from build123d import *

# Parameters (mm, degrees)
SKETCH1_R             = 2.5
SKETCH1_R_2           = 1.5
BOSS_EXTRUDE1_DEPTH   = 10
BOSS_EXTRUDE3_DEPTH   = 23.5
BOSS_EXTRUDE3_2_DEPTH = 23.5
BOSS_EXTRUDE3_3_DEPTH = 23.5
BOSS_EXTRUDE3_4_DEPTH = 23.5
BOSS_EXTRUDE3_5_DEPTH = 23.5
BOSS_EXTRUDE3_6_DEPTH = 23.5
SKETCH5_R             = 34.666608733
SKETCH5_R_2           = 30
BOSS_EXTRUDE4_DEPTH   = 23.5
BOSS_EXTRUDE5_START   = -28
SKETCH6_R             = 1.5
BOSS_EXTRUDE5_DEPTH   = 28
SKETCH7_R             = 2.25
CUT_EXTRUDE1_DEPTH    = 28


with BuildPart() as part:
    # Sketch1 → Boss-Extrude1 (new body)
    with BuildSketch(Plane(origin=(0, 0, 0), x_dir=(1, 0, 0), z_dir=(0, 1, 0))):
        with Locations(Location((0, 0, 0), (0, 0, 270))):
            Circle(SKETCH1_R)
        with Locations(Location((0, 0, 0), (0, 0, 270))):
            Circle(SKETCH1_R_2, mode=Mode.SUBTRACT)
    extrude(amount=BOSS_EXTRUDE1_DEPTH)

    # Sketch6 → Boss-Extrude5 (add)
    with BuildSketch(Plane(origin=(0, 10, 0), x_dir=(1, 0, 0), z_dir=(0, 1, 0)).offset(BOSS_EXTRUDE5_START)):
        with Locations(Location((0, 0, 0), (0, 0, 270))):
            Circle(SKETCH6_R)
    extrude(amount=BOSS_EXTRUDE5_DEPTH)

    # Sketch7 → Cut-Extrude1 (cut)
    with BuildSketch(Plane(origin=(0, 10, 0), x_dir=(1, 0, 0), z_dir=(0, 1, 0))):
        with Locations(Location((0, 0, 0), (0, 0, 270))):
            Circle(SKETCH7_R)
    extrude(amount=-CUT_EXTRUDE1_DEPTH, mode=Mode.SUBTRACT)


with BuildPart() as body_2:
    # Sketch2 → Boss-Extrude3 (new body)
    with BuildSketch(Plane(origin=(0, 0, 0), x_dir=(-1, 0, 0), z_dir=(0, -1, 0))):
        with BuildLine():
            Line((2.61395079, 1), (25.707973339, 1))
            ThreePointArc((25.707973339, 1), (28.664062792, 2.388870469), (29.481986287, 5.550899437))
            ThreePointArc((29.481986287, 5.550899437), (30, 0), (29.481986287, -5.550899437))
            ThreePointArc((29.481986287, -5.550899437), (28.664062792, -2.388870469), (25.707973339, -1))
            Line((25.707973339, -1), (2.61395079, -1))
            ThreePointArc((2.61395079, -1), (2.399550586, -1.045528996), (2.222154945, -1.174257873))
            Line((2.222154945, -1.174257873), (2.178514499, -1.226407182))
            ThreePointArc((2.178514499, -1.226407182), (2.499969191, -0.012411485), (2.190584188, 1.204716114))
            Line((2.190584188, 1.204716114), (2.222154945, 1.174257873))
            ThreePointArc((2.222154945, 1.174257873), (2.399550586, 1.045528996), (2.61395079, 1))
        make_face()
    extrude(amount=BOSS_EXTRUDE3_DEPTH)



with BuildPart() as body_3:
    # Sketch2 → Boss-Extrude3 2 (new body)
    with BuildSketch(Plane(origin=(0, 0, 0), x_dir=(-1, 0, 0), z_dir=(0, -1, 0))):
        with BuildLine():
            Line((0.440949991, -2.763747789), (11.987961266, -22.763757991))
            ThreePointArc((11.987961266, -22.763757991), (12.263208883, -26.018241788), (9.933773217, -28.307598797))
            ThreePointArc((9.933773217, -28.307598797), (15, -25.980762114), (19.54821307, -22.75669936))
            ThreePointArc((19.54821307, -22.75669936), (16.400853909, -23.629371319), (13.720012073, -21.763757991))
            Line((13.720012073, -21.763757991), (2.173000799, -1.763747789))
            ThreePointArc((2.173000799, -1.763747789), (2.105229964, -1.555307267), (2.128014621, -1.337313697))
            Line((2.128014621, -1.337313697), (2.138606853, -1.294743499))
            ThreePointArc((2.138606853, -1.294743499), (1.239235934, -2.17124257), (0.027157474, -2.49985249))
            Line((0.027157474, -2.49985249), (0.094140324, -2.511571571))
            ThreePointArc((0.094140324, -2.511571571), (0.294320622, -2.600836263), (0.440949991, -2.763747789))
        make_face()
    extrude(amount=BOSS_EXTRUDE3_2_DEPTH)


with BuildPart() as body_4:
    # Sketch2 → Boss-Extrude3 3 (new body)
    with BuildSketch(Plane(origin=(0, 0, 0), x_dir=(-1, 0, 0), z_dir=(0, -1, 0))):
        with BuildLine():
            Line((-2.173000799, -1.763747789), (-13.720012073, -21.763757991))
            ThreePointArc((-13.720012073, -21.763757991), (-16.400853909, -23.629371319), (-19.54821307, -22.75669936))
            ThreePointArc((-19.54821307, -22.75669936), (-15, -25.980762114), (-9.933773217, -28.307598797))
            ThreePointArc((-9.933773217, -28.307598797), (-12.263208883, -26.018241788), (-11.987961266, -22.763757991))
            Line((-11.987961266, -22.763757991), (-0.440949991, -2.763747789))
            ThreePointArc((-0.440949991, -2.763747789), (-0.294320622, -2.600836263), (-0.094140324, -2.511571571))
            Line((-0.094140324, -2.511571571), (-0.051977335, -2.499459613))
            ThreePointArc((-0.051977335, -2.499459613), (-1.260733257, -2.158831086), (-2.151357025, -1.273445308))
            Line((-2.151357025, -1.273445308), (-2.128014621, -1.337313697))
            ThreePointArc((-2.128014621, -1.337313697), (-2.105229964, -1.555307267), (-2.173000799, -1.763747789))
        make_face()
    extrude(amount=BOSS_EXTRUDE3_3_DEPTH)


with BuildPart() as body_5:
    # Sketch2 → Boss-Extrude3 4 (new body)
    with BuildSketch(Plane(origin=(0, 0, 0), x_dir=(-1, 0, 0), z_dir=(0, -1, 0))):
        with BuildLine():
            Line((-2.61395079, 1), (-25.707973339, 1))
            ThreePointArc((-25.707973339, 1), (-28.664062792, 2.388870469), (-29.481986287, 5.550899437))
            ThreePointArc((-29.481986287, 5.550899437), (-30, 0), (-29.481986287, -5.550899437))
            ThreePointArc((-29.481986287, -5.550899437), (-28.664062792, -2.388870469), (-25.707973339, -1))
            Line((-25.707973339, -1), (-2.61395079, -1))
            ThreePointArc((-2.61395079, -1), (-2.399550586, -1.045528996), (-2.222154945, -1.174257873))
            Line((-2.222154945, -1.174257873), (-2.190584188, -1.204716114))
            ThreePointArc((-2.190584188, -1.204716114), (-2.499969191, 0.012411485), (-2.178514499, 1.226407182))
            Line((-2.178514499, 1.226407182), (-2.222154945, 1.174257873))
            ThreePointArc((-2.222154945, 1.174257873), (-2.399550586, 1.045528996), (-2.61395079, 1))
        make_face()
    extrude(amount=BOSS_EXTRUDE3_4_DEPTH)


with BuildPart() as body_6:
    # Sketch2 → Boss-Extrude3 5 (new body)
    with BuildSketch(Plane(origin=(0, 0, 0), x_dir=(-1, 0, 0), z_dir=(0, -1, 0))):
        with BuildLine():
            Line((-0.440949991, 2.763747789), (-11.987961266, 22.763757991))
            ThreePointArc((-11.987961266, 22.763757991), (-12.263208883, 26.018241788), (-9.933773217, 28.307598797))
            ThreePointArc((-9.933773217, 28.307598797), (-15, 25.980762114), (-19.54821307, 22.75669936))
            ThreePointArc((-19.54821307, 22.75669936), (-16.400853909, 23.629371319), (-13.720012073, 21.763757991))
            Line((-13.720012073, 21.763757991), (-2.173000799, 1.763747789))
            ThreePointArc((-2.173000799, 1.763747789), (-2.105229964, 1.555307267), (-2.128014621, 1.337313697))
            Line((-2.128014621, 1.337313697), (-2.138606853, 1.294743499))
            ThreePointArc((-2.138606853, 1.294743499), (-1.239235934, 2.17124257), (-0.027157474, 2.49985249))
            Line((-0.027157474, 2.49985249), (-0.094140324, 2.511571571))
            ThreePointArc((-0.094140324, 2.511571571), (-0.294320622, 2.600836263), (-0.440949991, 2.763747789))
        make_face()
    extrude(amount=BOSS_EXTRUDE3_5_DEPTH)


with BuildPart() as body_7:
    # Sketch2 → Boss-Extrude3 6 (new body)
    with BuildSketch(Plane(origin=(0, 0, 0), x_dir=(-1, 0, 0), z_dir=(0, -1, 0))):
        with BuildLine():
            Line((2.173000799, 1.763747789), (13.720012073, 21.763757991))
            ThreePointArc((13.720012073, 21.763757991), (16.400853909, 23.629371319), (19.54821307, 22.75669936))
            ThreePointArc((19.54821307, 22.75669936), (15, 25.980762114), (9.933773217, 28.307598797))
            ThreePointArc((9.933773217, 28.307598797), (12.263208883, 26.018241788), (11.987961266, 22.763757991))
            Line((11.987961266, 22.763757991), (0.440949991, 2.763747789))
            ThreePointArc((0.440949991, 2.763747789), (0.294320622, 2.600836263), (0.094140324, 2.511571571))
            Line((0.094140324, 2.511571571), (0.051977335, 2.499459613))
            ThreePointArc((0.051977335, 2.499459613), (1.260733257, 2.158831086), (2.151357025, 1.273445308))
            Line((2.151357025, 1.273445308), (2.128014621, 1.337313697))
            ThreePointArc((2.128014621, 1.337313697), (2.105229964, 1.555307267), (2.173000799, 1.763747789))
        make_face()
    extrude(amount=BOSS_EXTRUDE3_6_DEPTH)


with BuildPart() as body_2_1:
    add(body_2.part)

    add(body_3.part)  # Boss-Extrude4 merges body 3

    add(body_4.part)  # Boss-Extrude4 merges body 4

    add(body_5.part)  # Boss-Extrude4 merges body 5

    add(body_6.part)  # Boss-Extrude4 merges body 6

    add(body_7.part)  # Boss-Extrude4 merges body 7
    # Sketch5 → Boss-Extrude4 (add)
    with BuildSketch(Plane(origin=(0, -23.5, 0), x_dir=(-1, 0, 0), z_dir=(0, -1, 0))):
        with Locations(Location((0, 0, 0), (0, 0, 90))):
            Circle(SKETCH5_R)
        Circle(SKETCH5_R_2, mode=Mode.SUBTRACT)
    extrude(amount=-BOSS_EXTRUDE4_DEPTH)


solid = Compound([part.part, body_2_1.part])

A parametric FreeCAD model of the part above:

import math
import FreeCAD as App
import Part
import Sketcher
from FreeCAD import Vector
Q = App.Units.Quantity

doc = App.newDocument("Part")
body = doc.addObject("PartDesign::Body", "Body")

# Sketch on XZ plane
sketch1 = body.newObject("Sketcher::SketchObject", "Sketch")
sketch1.AttachmentSupport = (doc.getObject("XZ_Plane"), [""])
sketch1.MapMode = "FlatFace"
sketch1.addGeometry(Part.Circle(Vector(0, 0, 0), Vector(0, 0, 1), 2.5), False)
sketch1.addGeometry(Part.Circle(Vector(0, 0, 0), Vector(0, 0, 1), 1.5), False)
sketch1.addConstraint(Sketcher.Constraint("Coincident", 0, 3, -1, 1))
sketch1.addConstraint(Sketcher.Constraint("Coincident", 1, 3, -1, 1))
sketch1.addConstraint(Sketcher.Constraint("Diameter", 0, 5.0))
sketch1.addConstraint(Sketcher.Constraint("Diameter", 1, 3.0))
pad1 = body.newObject("PartDesign::Pad", "Pad")
pad1.Profile = sketch1
pad1.Length = 10
pad1.Reversed = True

# Sketch on XZ plane
sketch2 = body.newObject("Sketcher::SketchObject", "Sketch001")
sketch2.AttachmentSupport = (doc.getObject("XZ_Plane"), [""])
sketch2.MapMode = "FlatFace"
sketch2.AttachmentOffset = App.Placement(Vector(0, 0, 18), App.Rotation())
sketch2.addGeometry(Part.Circle(Vector(0, 0, 0), Vector(0, 0, 1), 1.5), False)
sketch2.addConstraint(Sketcher.Constraint("Coincident", 0, 3, -1, 1))
sketch2.addConstraint(Sketcher.Constraint("Diameter", 0, 3.0))
pad2 = body.newObject("PartDesign::Pad", "Pad001")
pad2.Profile = sketch2
pad2.Length = 28
pad2.Reversed = True

# Sketch on XZ plane
sketch3 = body.newObject("Sketcher::SketchObject", "Sketch002")
sketch3.AttachmentSupport = (doc.getObject("XZ_Plane"), [""])
sketch3.MapMode = "FlatFace"
sketch3.AttachmentOffset = App.Placement(Vector(0, 0, -10), App.Rotation())
sketch3.addGeometry(Part.Circle(Vector(0, 0, 0), Vector(0, 0, 1), 2.25), False)
sketch3.addConstraint(Sketcher.Constraint("Coincident", 0, 3, -1, 1))
sketch3.addConstraint(Sketcher.Constraint("Diameter", 0, 4.5))
pocket1 = body.newObject("PartDesign::Pocket", "Pocket")
pocket1.Profile = sketch3
pocket1.Length = 28
pocket1.Reversed = True
body2 = doc.addObject("PartDesign::Body", "Body001")

# Sketch on XZ plane
sketch4 = body2.newObject("Sketcher::SketchObject", "Sketch003")
sketch4.AttachmentSupport = (doc.getObject("XZ_Plane001"), [""])
sketch4.MapMode = "FlatFace"
sketch4.addGeometry(Part.LineSegment(Vector(-25.707973, -1, 0), Vector(-2.613951, -1, 0)), False)
sketch4.addGeometry(Part.ArcOfCircle(Part.Circle(Vector(-2.613951, -1.52758, 0), Vector(0, 0, 1), 0.52758), math.radians(42.044158), math.radians(90)), False)
sketch4.addGeometry(Part.LineSegment(Vector(-2.222155, -1.174258, 0), Vector(-2.190584, -1.204716, 0)), False)
sketch4.addGeometry(Part.ArcOfCircle(Part.Circle(Vector(0, 0, 0), Vector(0, 0, 1), 2.5), math.radians(150.622416), math.radians(208.808681)), False)
sketch4.addGeometry(Part.LineSegment(Vector(-2.178514, 1.226407, 0), Vector(-2.222155, 1.174258, 0)), False)
sketch4.addGeometry(Part.ArcOfCircle(Part.Circle(Vector(-2.613951, 1.52758, 0), Vector(0, 0, 1), 0.52758), math.radians(-90), math.radians(-42.044158)), False)
sketch4.addGeometry(Part.LineSegment(Vector(-2.613951, 1, 0), Vector(-25.707973, 1, 0)), False)
sketch4.addGeometry(Part.ArcOfCircle(Part.Circle(Vector(-25.707973, 4.840324, 0), Vector(0, 0, 1), 3.840324), math.radians(169.33712), math.radians(270)), False)
sketch4.addGeometry(Part.ArcOfCircle(Part.Circle(Vector(0, 0, 0), Vector(0, 0, 1), 30), math.radians(169.33712), math.radians(190.66288)), False)
sketch4.addGeometry(Part.ArcOfCircle(Part.Circle(Vector(-25.707973, -4.840324, 0), Vector(0, 0, 1), 3.840324), math.radians(90), math.radians(190.66288)), False)
sketch4.addConstraint(Sketcher.Constraint("Tangent", 0, 2, 1, 2))
sketch4.addConstraint(Sketcher.Constraint("Coincident", 1, 1, 2, 1))
sketch4.addConstraint(Sketcher.Constraint("Coincident", 2, 2, 3, 2))
sketch4.addConstraint(Sketcher.Constraint("Coincident", 3, 1, 4, 1))
sketch4.addConstraint(Sketcher.Constraint("Coincident", 4, 2, 5, 2))
sketch4.addConstraint(Sketcher.Constraint("Tangent", 5, 1, 6, 1))
sketch4.addConstraint(Sketcher.Constraint("Tangent", 6, 2, 7, 2))
sketch4.addConstraint(Sketcher.Constraint("Tangent", 7, 1, 8, 1))
sketch4.addConstraint(Sketcher.Constraint("Tangent", 8, 2, 9, 2))
sketch4.addConstraint(Sketcher.Constraint("Tangent", 9, 1, 0, 1))
sketch4.addConstraint(Sketcher.Constraint("Horizontal", 0))
sketch4.addConstraint(Sketcher.Constraint("Horizontal", 6))
sketch4.addConstraint(Sketcher.Constraint("Coincident", 3, 3, -1, 1))
sketch4.addConstraint(Sketcher.Constraint("Coincident", 8, 3, -1, 1))
sketch4.addConstraint(Sketcher.Constraint("Equal", 1, 5))
sketch4.addConstraint(Sketcher.Constraint("Equal", 7, 9))
sketch4.addConstraint(Sketcher.Constraint("Symmetric", 1, 3, 5, 3, -1))
sketch4.addConstraint(Sketcher.Constraint("Vertical", 1, 1, 4, 2))
sketch4.addConstraint(Sketcher.Constraint("Radius", 8, 30.0))
sketch4.addConstraint(Sketcher.Constraint("Radius", 3, 2.5))
sketch4.addConstraint(Sketcher.Constraint("DistanceY", 0, 2, -1, 1, 1.0))
sketch4.addConstraint(Sketcher.Constraint("Radius", 1, 0.52758))
sketch4.addConstraint(Sketcher.Constraint("Distance", 4, 0.068))
sketch4.addConstraint(Sketcher.Constraint("Radius", 7, 3.840324))
sketch4.addConstraint(Sketcher.Constraint("Distance", 2, 0.043868))
sketch4.addConstraint(Sketcher.Constraint("DistanceX", 0, 1, 0, 2, 23.094023))
sketch4.addConstraint(Sketcher.Constraint("DistanceY", 1, 3, 1, 1, 0.353322))
pad3 = body2.newObject("PartDesign::Pad", "Pad002")
pad3.Profile = sketch4
pad3.Length = 23.5
body3 = doc.addObject("PartDesign::Body", "Body002")

# Sketch on XZ plane
sketch5 = body3.newObject("Sketcher::SketchObject", "Sketch004")
sketch5.AttachmentSupport = (doc.getObject("XZ_Plane002"), [""])
sketch5.MapMode = "FlatFace"
sketch5.addGeometry(Part.LineSegment(Vector(-0.44095, 2.763748, 0), Vector(-11.987961, 22.763758, 0)), False)
sketch5.addGeometry(Part.ArcOfCircle(Part.Circle(Vector(-8.662143, 24.68392, 0), Vector(0, 0, 1), 3.840324), math.radians(109.33712), math.radians(210)), False)
sketch5.addGeometry(Part.ArcOfCircle(Part.Circle(Vector(0, 0, 0), Vector(0, 0, 1), 30), math.radians(109.33712), math.radians(130.66288)), False)
sketch5.addGeometry(Part.ArcOfCircle(Part.Circle(Vector(-17.04583, 19.843596, 0), Vector(0, 0, 1), 3.840324), math.radians(30), math.radians(130.66288)), False)
sketch5.addGeometry(Part.LineSegment(Vector(-13.720012, 21.763758, 0), Vector(-2.173001, 1.763748, 0)), False)
sketch5.addGeometry(Part.ArcOfCircle(Part.Circle(Vector(-2.629898, 1.499958, 0), Vector(0, 0, 1), 0.52758), math.radians(-17.955842), math.radians(30)), False)
sketch5.addGeometry(Part.LineSegment(Vector(-2.128015, 1.337314, 0), Vector(-2.138607, 1.294743, 0)), False)
sketch5.addGeometry(Part.ArcOfCircle(Part.Circle(Vector(0, 0, 0), Vector(0, 0, 1), 2.5), math.radians(90.622416), math.radians(148.808681)), False)
sketch5.addGeometry(Part.LineSegment(Vector(-0.027157, 2.499852, 0), Vector(-0.09414, 2.511572, 0)), False)
sketch5.addGeometry(Part.ArcOfCircle(Part.Circle(Vector(0.015947, 3.027538, 0), Vector(0, 0, 1), 0.52758), math.radians(-150), math.radians(-102.044157)), False)
sketch5.addConstraint(Sketcher.Constraint("Tangent", 0, 2, 1, 2))
sketch5.addConstraint(Sketcher.Constraint("Tangent", 1, 1, 2, 1))
sketch5.addConstraint(Sketcher.Constraint("Tangent", 2, 2, 3, 2))
sketch5.addConstraint(Sketcher.Constraint("Tangent", 3, 1, 4, 1))
sketch5.addConstraint(Sketcher.Constraint("Tangent", 4, 2, 5, 2))
sketch5.addConstraint(Sketcher.Constraint("Coincident", 5, 1, 6, 1))
sketch5.addConstraint(Sketcher.Constraint("Coincident", 6, 2, 7, 2))
sketch5.addConstraint(Sketcher.Constraint("Coincident", 7, 1, 8, 1))
sketch5.addConstraint(Sketcher.Constraint("Coincident", 8, 2, 9, 2))
sketch5.addConstraint(Sketcher.Constraint("Tangent", 9, 1, 0, 1))
sketch5.addConstraint(Sketcher.Constraint("Coincident", 2, 3, -1, 1))
sketch5.addConstraint(Sketcher.Constraint("Coincident", 7, 3, -1, 1))
sketch5.addConstraint(Sketcher.Constraint("Equal", 1, 3))
sketch5.addConstraint(Sketcher.Constraint("Equal", 5, 9))
sketch5.addConstraint(Sketcher.Constraint("Parallel", 0, 4))
sketch5.addConstraint(Sketcher.Constraint("Equal", 0, 4))
sketch5.addConstraint(Sketcher.Constraint("Radius", 2, 30.0))
sketch5.addConstraint(Sketcher.Constraint("Radius", 7, 2.5))
sketch5.addConstraint(Sketcher.Constraint("Angle", 0, Q("120 deg")))
sketch5.addConstraint(Sketcher.Constraint("DistanceY", 3, 1, 0, 2, 1.0))
sketch5.addConstraint(Sketcher.Constraint("Radius", 5, 0.52758))
sketch5.addConstraint(Sketcher.Constraint("Distance", 8, 0.068))
sketch5.addConstraint(Sketcher.Constraint("DistanceX", 4, 2, -1, 1, 2.173001))
sketch5.addConstraint(Sketcher.Constraint("Radius", 1, 3.840324))
sketch5.addConstraint(Sketcher.Constraint("DistanceY", -1, 1, 1, 1, 28.307599))
sketch5.addConstraint(Sketcher.Constraint("Distance", 6, 0.043868))
sketch5.addConstraint(Sketcher.Constraint("DistanceX", 8, 2, -1, 1, 0.09414))
sketch5.addConstraint(Sketcher.Constraint("DistanceX", 5, 1, 9, 3, 2.143962))
pad4 = body3.newObject("PartDesign::Pad", "Pad003")
pad4.Profile = sketch5
pad4.Length = 23.5
body4 = doc.addObject("PartDesign::Body", "Body003")

# Sketch on XZ plane
sketch6 = body4.newObject("Sketcher::SketchObject", "Sketch005")
sketch6.AttachmentSupport = (doc.getObject("XZ_Plane003"), [""])
sketch6.MapMode = "FlatFace"
sketch6.addGeometry(Part.LineSegment(Vector(2.173001, 1.763748, 0), Vector(13.720012, 21.763758, 0)), False)
sketch6.addGeometry(Part.ArcOfCircle(Part.Circle(Vector(17.04583, 19.843596, 0), Vector(0, 0, 1), 3.840324), math.radians(49.33712), math.radians(150)), False)
sketch6.addGeometry(Part.ArcOfCircle(Part.Circle(Vector(0, 0, 0), Vector(0, 0, 1), 30), math.radians(49.33712), math.radians(70.66288)), False)
sketch6.addGeometry(Part.ArcOfCircle(Part.Circle(Vector(8.662143, 24.68392, 0), Vector(0, 0, 1), 3.840324), math.radians(-30), math.radians(70.66288)), False)
sketch6.addGeometry(Part.LineSegment(Vector(11.987961, 22.763758, 0), Vector(0.44095, 2.763748, 0)), False)
sketch6.addGeometry(Part.ArcOfCircle(Part.Circle(Vector(-0.015947, 3.027538, 0), Vector(0, 0, 1), 0.52758), math.radians(-77.955843), math.radians(-30)), False)
sketch6.addGeometry(Part.LineSegment(Vector(0.09414, 2.511572, 0), Vector(0.051977, 2.49946, 0)), False)
sketch6.addGeometry(Part.ArcOfCircle(Part.Circle(Vector(0, 0, 0), Vector(0, 0, 1), 2.5), math.radians(30.622416), math.radians(88.808681)), False)
sketch6.addGeometry(Part.LineSegment(Vector(2.151357, 1.273445, 0), Vector(2.128015, 1.337314, 0)), False)
sketch6.addGeometry(Part.ArcOfCircle(Part.Circle(Vector(2.629898, 1.499958, 0), Vector(0, 0, 1), 0.52758), math.radians(150), math.radians(197.955842)), False)
sketch6.addConstraint(Sketcher.Constraint("Tangent", 0, 2, 1, 2))
sketch6.addConstraint(Sketcher.Constraint("Tangent", 1, 1, 2, 1))
sketch6.addConstraint(Sketcher.Constraint("Tangent", 2, 2, 3, 2))
sketch6.addConstraint(Sketcher.Constraint("Tangent", 3, 1, 4, 1))
sketch6.addConstraint(Sketcher.Constraint("Tangent", 4, 2, 5, 2))
sketch6.addConstraint(Sketcher.Constraint("Coincident", 5, 1, 6, 1))
sketch6.addConstraint(Sketcher.Constraint("Coincident", 6, 2, 7, 2))
sketch6.addConstraint(Sketcher.Constraint("Coincident", 7, 1, 8, 1))
sketch6.addConstraint(Sketcher.Constraint("Coincident", 8, 2, 9, 2))
sketch6.addConstraint(Sketcher.Constraint("Tangent", 9, 1, 0, 1))
sketch6.addConstraint(Sketcher.Constraint("Coincident", 2, 3, -1, 1))
sketch6.addConstraint(Sketcher.Constraint("Coincident", 7, 3, -1, 1))
sketch6.addConstraint(Sketcher.Constraint("Equal", 1, 3))
sketch6.addConstraint(Sketcher.Constraint("Equal", 5, 9))
sketch6.addConstraint(Sketcher.Constraint("Parallel", 0, 4))
sketch6.addConstraint(Sketcher.Constraint("Equal", 0, 4))
sketch6.addConstraint(Sketcher.Constraint("Radius", 2, 30.0))
sketch6.addConstraint(Sketcher.Constraint("Radius", 7, 2.5))
sketch6.addConstraint(Sketcher.Constraint("Angle", 0, Q("60 deg")))
sketch6.addConstraint(Sketcher.Constraint("DistanceY", 0, 2, 3, 1, 1.0))
sketch6.addConstraint(Sketcher.Constraint("Radius", 5, 0.52758))
sketch6.addConstraint(Sketcher.Constraint("Distance", 8, 0.068))
sketch6.addConstraint(Sketcher.Constraint("DistanceX", -1, 1, 9, 1, 2.173001))
sketch6.addConstraint(Sketcher.Constraint("Radius", 1, 3.840324))
sketch6.addConstraint(Sketcher.Constraint("DistanceY", -1, 1, 1, 1, 22.756699))
sketch6.addConstraint(Sketcher.Constraint("Distance", 6, 0.043868))
sketch6.addConstraint(Sketcher.Constraint("DistanceX", -1, 1, 5, 1, 0.09414))
sketch6.addConstraint(Sketcher.Constraint("DistanceX", 7, 1, 9, 3, 0.478541))
pad5 = body4.newObject("PartDesign::Pad", "Pad004")
pad5.Profile = sketch6
pad5.Length = 23.5
body5 = doc.addObject("PartDesign::Body", "Body004")

# Sketch on XZ plane
sketch7 = body5.newObject("Sketcher::SketchObject", "Sketch006")
sketch7.AttachmentSupport = (doc.getObject("XZ_Plane004"), [""])
sketch7.MapMode = "FlatFace"
sketch7.addGeometry(Part.LineSegment(Vector(2.613951, -1, 0), Vector(25.707973, -1, 0)), False)
sketch7.addGeometry(Part.ArcOfCircle(Part.Circle(Vector(25.707973, -4.840324, 0), Vector(0, 0, 1), 3.840324), math.radians(-10.66288), math.radians(90)), False)
sketch7.addGeometry(Part.ArcOfCircle(Part.Circle(Vector(0, 0, 0), Vector(0, 0, 1), 30), math.radians(-10.66288), math.radians(10.66288)), False)
sketch7.addGeometry(Part.ArcOfCircle(Part.Circle(Vector(25.707973, 4.840324, 0), Vector(0, 0, 1), 3.840324), math.radians(-90), math.radians(10.66288)), False)
sketch7.addGeometry(Part.LineSegment(Vector(25.707973, 1, 0), Vector(2.613951, 1, 0)), False)
sketch7.addGeometry(Part.ArcOfCircle(Part.Circle(Vector(2.613951, 1.52758, 0), Vector(0, 0, 1), 0.52758), math.radians(-137.955842), math.radians(-90)), False)
sketch7.addGeometry(Part.LineSegment(Vector(2.222155, 1.174258, 0), Vector(2.190584, 1.204716, 0)), False)
sketch7.addGeometry(Part.ArcOfCircle(Part.Circle(Vector(0, 0, 0), Vector(0, 0, 1), 2.5), math.radians(-29.377584), math.radians(28.808681)), False)
sketch7.addGeometry(Part.LineSegment(Vector(2.178514, -1.226407, 0), Vector(2.222155, -1.174258, 0)), False)
sketch7.addGeometry(Part.ArcOfCircle(Part.Circle(Vector(2.613951, -1.52758, 0), Vector(0, 0, 1), 0.52758), math.radians(90), math.radians(137.955842)), False)
sketch7.addConstraint(Sketcher.Constraint("Tangent", 0, 2, 1, 2))
sketch7.addConstraint(Sketcher.Constraint("Tangent", 1, 1, 2, 1))
sketch7.addConstraint(Sketcher.Constraint("Tangent", 2, 2, 3, 2))
sketch7.addConstraint(Sketcher.Constraint("Tangent", 3, 1, 4, 1))
sketch7.addConstraint(Sketcher.Constraint("Tangent", 4, 2, 5, 2))
sketch7.addConstraint(Sketcher.Constraint("Coincident", 5, 1, 6, 1))
sketch7.addConstraint(Sketcher.Constraint("Coincident", 6, 2, 7, 2))
sketch7.addConstraint(Sketcher.Constraint("Coincident", 7, 1, 8, 1))
sketch7.addConstraint(Sketcher.Constraint("Coincident", 8, 2, 9, 2))
sketch7.addConstraint(Sketcher.Constraint("Tangent", 9, 1, 0, 1))
sketch7.addConstraint(Sketcher.Constraint("Horizontal", 0))
sketch7.addConstraint(Sketcher.Constraint("Horizontal", 4))
sketch7.addConstraint(Sketcher.Constraint("Coincident", 2, 3, -1, 1))
sketch7.addConstraint(Sketcher.Constraint("Coincident", 7, 3, -1, 1))
sketch7.addConstraint(Sketcher.Constraint("Equal", 1, 3))
sketch7.addConstraint(Sketcher.Constraint("Equal", 5, 9))
sketch7.addConstraint(Sketcher.Constraint("Symmetric", 5, 3, 9, 3, -1))
sketch7.addConstraint(Sketcher.Constraint("Vertical", 5, 1, 8, 2))
sketch7.addConstraint(Sketcher.Constraint("Radius", 2, 30.0))
sketch7.addConstraint(Sketcher.Constraint("Radius", 7, 2.5))
sketch7.addConstraint(Sketcher.Constraint("DistanceY", 0, 2, -1, 1, 1.0))
sketch7.addConstraint(Sketcher.Constraint("Radius", 5, 0.52758))
sketch7.addConstraint(Sketcher.Constraint("Distance", 8, 0.068))
sketch7.addConstraint(Sketcher.Constraint("Radius", 1, 3.840324))
sketch7.addConstraint(Sketcher.Constraint("Distance", 6, 0.043868))
sketch7.addConstraint(Sketcher.Constraint("DistanceX", 0, 1, 0, 2, 23.094023))
sketch7.addConstraint(Sketcher.Constraint("DistanceY", 5, 1, 5, 3, 0.353322))
pad6 = body5.newObject("PartDesign::Pad", "Pad005")
pad6.Profile = sketch7
pad6.Length = 23.5
body6 = doc.addObject("PartDesign::Body", "Body005")

# Sketch on XZ plane
sketch8 = body6.newObject("Sketcher::SketchObject", "Sketch007")
sketch8.AttachmentSupport = (doc.getObject("XZ_Plane005"), [""])
sketch8.MapMode = "FlatFace"
sketch8.addGeometry(Part.LineSegment(Vector(0.44095, -2.763748, 0), Vector(11.987961, -22.763758, 0)), False)
sketch8.addGeometry(Part.ArcOfCircle(Part.Circle(Vector(8.662143, -24.68392, 0), Vector(0, 0, 1), 3.840324), math.radians(-70.66288), math.radians(30)), False)
sketch8.addGeometry(Part.ArcOfCircle(Part.Circle(Vector(0, 0, 0), Vector(0, 0, 1), 30), math.radians(-70.66288), math.radians(-49.33712)), False)
sketch8.addGeometry(Part.ArcOfCircle(Part.Circle(Vector(17.04583, -19.843596, 0), Vector(0, 0, 1), 3.840324), math.radians(-150), math.radians(-49.33712)), False)
sketch8.addGeometry(Part.LineSegment(Vector(13.720012, -21.763758, 0), Vector(2.173001, -1.763748, 0)), False)
sketch8.addGeometry(Part.ArcOfCircle(Part.Circle(Vector(2.629898, -1.499958, 0), Vector(0, 0, 1), 0.52758), math.radians(162.044158), math.radians(210)), False)
sketch8.addGeometry(Part.LineSegment(Vector(2.128015, -1.337314, 0), Vector(2.138607, -1.294743, 0)), False)
sketch8.addGeometry(Part.ArcOfCircle(Part.Circle(Vector(0, 0, 0), Vector(0, 0, 1), 2.5), math.radians(-89.377584), math.radians(-31.191319)), False)
sketch8.addGeometry(Part.LineSegment(Vector(0.027157, -2.499852, 0), Vector(0.09414, -2.511572, 0)), False)
sketch8.addGeometry(Part.ArcOfCircle(Part.Circle(Vector(-0.015947, -3.027538, 0), Vector(0, 0, 1), 0.52758), math.radians(30), math.radians(77.955843)), False)
sketch8.addConstraint(Sketcher.Constraint("Tangent", 0, 2, 1, 2))
sketch8.addConstraint(Sketcher.Constraint("Tangent", 1, 1, 2, 1))
sketch8.addConstraint(Sketcher.Constraint("Tangent", 2, 2, 3, 2))
sketch8.addConstraint(Sketcher.Constraint("Tangent", 3, 1, 4, 1))
sketch8.addConstraint(Sketcher.Constraint("Tangent", 4, 2, 5, 2))
sketch8.addConstraint(Sketcher.Constraint("Coincident", 5, 1, 6, 1))
sketch8.addConstraint(Sketcher.Constraint("Coincident", 6, 2, 7, 2))
sketch8.addConstraint(Sketcher.Constraint("Coincident", 7, 1, 8, 1))
sketch8.addConstraint(Sketcher.Constraint("Coincident", 8, 2, 9, 2))
sketch8.addConstraint(Sketcher.Constraint("Tangent", 9, 1, 0, 1))
sketch8.addConstraint(Sketcher.Constraint("Coincident", 2, 3, -1, 1))
sketch8.addConstraint(Sketcher.Constraint("Coincident", 7, 3, -1, 1))
sketch8.addConstraint(Sketcher.Constraint("Equal", 1, 3))
sketch8.addConstraint(Sketcher.Constraint("Equal", 5, 9))
sketch8.addConstraint(Sketcher.Constraint("Parallel", 0, 4))
sketch8.addConstraint(Sketcher.Constraint("Equal", 0, 4))
sketch8.addConstraint(Sketcher.Constraint("Radius", 2, 30.0))
sketch8.addConstraint(Sketcher.Constraint("Radius", 7, 2.5))
sketch8.addConstraint(Sketcher.Constraint("Angle", 0, Q("-60 deg")))
sketch8.addConstraint(Sketcher.Constraint("DistanceY", 0, 2, 3, 1, 1.0))
sketch8.addConstraint(Sketcher.Constraint("Radius", 5, 0.52758))
sketch8.addConstraint(Sketcher.Constraint("Distance", 8, 0.068))
sketch8.addConstraint(Sketcher.Constraint("DistanceX", -1, 1, 4, 2, 2.173001))
sketch8.addConstraint(Sketcher.Constraint("Radius", 1, 3.840324))
sketch8.addConstraint(Sketcher.Constraint("DistanceY", 1, 1, -1, 1, 28.307599))
sketch8.addConstraint(Sketcher.Constraint("Distance", 6, 0.043868))
sketch8.addConstraint(Sketcher.Constraint("DistanceX", -1, 1, 8, 2, 0.09414))
sketch8.addConstraint(Sketcher.Constraint("DistanceX", 9, 3, 5, 1, 2.143962))
pad7 = body6.newObject("PartDesign::Pad", "Pad006")
pad7.Profile = sketch8
pad7.Length = 23.5
body7 = doc.addObject("PartDesign::Body", "Body006")

# Sketch on XZ plane
sketch9 = body7.newObject("Sketcher::SketchObject", "Sketch008")
sketch9.AttachmentSupport = (doc.getObject("XZ_Plane006"), [""])
sketch9.MapMode = "FlatFace"
sketch9.addGeometry(Part.LineSegment(Vector(-2.173001, -1.763748, 0), Vector(-13.720012, -21.763758, 0)), False)
sketch9.addGeometry(Part.ArcOfCircle(Part.Circle(Vector(-17.04583, -19.843596, 0), Vector(0, 0, 1), 3.840324), math.radians(-130.66288), math.radians(-30)), False)
sketch9.addGeometry(Part.ArcOfCircle(Part.Circle(Vector(0, 0, 0), Vector(0, 0, 1), 30), math.radians(-130.66288), math.radians(-109.33712)), False)
sketch9.addGeometry(Part.ArcOfCircle(Part.Circle(Vector(-8.662143, -24.68392, 0), Vector(0, 0, 1), 3.840324), math.radians(150), math.radians(250.66288)), False)
sketch9.addGeometry(Part.LineSegment(Vector(-11.987961, -22.763758, 0), Vector(-0.44095, -2.763748, 0)), False)
sketch9.addGeometry(Part.ArcOfCircle(Part.Circle(Vector(0.015947, -3.027538, 0), Vector(0, 0, 1), 0.52758), math.radians(102.044157), math.radians(150)), False)
sketch9.addGeometry(Part.LineSegment(Vector(-0.09414, -2.511572, 0), Vector(-0.051977, -2.49946, 0)), False)
sketch9.addGeometry(Part.ArcOfCircle(Part.Circle(Vector(0, 0, 0), Vector(0, 0, 1), 2.5), math.radians(-149.377584), math.radians(-91.191319)), False)
sketch9.addGeometry(Part.LineSegment(Vector(-2.151357, -1.273445, 0), Vector(-2.128015, -1.337314, 0)), False)
sketch9.addGeometry(Part.ArcOfCircle(Part.Circle(Vector(-2.629898, -1.499958, 0), Vector(0, 0, 1), 0.52758), math.radians(-30), math.radians(17.955842)), False)
sketch9.addConstraint(Sketcher.Constraint("Tangent", 0, 2, 1, 2))
sketch9.addConstraint(Sketcher.Constraint("Tangent", 1, 1, 2, 1))
sketch9.addConstraint(Sketcher.Constraint("Tangent", 2, 2, 3, 2))
sketch9.addConstraint(Sketcher.Constraint("Tangent", 3, 1, 4, 1))
sketch9.addConstraint(Sketcher.Constraint("Tangent", 4, 2, 5, 2))
sketch9.addConstraint(Sketcher.Constraint("Coincident", 5, 1, 6, 1))
sketch9.addConstraint(Sketcher.Constraint("Coincident", 6, 2, 7, 2))
sketch9.addConstraint(Sketcher.Constraint("Coincident", 7, 1, 8, 1))
sketch9.addConstraint(Sketcher.Constraint("Coincident", 8, 2, 9, 2))
sketch9.addConstraint(Sketcher.Constraint("Tangent", 9, 1, 0, 1))
sketch9.addConstraint(Sketcher.Constraint("Coincident", 2, 3, -1, 1))
sketch9.addConstraint(Sketcher.Constraint("Coincident", 7, 3, -1, 1))
sketch9.addConstraint(Sketcher.Constraint("Equal", 1, 3))
sketch9.addConstraint(Sketcher.Constraint("Equal", 5, 9))
sketch9.addConstraint(Sketcher.Constraint("Parallel", 0, 4))
sketch9.addConstraint(Sketcher.Constraint("Equal", 0, 4))
sketch9.addConstraint(Sketcher.Constraint("Radius", 2, 30.0))
sketch9.addConstraint(Sketcher.Constraint("Radius", 7, 2.5))
sketch9.addConstraint(Sketcher.Constraint("Angle", 0, Q("-120 deg")))
sketch9.addConstraint(Sketcher.Constraint("DistanceY", 3, 1, 0, 2, 1.0))
sketch9.addConstraint(Sketcher.Constraint("Radius", 5, 0.52758))
sketch9.addConstraint(Sketcher.Constraint("Distance", 8, 0.068))
sketch9.addConstraint(Sketcher.Constraint("DistanceX", 9, 1, -1, 1, 2.173001))
sketch9.addConstraint(Sketcher.Constraint("Radius", 1, 3.840324))
sketch9.addConstraint(Sketcher.Constraint("DistanceY", 1, 1, -1, 1, 22.756699))
sketch9.addConstraint(Sketcher.Constraint("Distance", 6, 0.043868))
sketch9.addConstraint(Sketcher.Constraint("DistanceX", 5, 1, -1, 1, 0.09414))
sketch9.addConstraint(Sketcher.Constraint("DistanceX", 9, 3, 7, 1, 0.478541))
pad8 = body7.newObject("PartDesign::Pad", "Pad007")
pad8.Profile = sketch9
pad8.Length = 23.5
body2.AllowCompound = True
doc.recompute()

boolean = body2.newObject("PartDesign::Boolean", "Boolean")
boolean.Type = "Fuse"
boolean.addObjects([body3])
doc.recompute()

boolean2 = body2.newObject("PartDesign::Boolean", "Boolean001")
boolean2.Type = "Fuse"
boolean2.addObjects([body4])
doc.recompute()

boolean3 = body2.newObject("PartDesign::Boolean", "Boolean002")
boolean3.Type = "Fuse"
boolean3.addObjects([body5])
doc.recompute()

boolean4 = body2.newObject("PartDesign::Boolean", "Boolean003")
boolean4.Type = "Fuse"
boolean4.addObjects([body6])
doc.recompute()

boolean5 = body2.newObject("PartDesign::Boolean", "Boolean004")
boolean5.Type = "Fuse"
boolean5.addObjects([body7])

# Sketch on XZ plane
sketch10 = body2.newObject("Sketcher::SketchObject", "Sketch009")
sketch10.AttachmentSupport = (doc.getObject("XZ_Plane001"), [""])
sketch10.MapMode = "FlatFace"
sketch10.AttachmentOffset = App.Placement(Vector(0, 0, 23.5), App.Rotation())
sketch10.addGeometry(Part.Circle(Vector(0, 0, 0), Vector(0, 0, 1), 34.666609), False)
sketch10.addGeometry(Part.Circle(Vector(0, 0, 0), Vector(0, 0, 1), 30), False)
sketch10.addConstraint(Sketcher.Constraint("Coincident", 0, 3, -1, 1))
sketch10.addConstraint(Sketcher.Constraint("Coincident", 1, 3, -1, 1))
sketch10.addConstraint(Sketcher.Constraint("Diameter", 1, 60.0))
sketch10.addConstraint(Sketcher.Constraint("Diameter", 0, 69.333217))
pad9 = body2.newObject("PartDesign::Pad", "Pad008")
pad9.Profile = sketch10
pad9.Length = 23.5
pad9.Reversed = True

doc.recompute()
